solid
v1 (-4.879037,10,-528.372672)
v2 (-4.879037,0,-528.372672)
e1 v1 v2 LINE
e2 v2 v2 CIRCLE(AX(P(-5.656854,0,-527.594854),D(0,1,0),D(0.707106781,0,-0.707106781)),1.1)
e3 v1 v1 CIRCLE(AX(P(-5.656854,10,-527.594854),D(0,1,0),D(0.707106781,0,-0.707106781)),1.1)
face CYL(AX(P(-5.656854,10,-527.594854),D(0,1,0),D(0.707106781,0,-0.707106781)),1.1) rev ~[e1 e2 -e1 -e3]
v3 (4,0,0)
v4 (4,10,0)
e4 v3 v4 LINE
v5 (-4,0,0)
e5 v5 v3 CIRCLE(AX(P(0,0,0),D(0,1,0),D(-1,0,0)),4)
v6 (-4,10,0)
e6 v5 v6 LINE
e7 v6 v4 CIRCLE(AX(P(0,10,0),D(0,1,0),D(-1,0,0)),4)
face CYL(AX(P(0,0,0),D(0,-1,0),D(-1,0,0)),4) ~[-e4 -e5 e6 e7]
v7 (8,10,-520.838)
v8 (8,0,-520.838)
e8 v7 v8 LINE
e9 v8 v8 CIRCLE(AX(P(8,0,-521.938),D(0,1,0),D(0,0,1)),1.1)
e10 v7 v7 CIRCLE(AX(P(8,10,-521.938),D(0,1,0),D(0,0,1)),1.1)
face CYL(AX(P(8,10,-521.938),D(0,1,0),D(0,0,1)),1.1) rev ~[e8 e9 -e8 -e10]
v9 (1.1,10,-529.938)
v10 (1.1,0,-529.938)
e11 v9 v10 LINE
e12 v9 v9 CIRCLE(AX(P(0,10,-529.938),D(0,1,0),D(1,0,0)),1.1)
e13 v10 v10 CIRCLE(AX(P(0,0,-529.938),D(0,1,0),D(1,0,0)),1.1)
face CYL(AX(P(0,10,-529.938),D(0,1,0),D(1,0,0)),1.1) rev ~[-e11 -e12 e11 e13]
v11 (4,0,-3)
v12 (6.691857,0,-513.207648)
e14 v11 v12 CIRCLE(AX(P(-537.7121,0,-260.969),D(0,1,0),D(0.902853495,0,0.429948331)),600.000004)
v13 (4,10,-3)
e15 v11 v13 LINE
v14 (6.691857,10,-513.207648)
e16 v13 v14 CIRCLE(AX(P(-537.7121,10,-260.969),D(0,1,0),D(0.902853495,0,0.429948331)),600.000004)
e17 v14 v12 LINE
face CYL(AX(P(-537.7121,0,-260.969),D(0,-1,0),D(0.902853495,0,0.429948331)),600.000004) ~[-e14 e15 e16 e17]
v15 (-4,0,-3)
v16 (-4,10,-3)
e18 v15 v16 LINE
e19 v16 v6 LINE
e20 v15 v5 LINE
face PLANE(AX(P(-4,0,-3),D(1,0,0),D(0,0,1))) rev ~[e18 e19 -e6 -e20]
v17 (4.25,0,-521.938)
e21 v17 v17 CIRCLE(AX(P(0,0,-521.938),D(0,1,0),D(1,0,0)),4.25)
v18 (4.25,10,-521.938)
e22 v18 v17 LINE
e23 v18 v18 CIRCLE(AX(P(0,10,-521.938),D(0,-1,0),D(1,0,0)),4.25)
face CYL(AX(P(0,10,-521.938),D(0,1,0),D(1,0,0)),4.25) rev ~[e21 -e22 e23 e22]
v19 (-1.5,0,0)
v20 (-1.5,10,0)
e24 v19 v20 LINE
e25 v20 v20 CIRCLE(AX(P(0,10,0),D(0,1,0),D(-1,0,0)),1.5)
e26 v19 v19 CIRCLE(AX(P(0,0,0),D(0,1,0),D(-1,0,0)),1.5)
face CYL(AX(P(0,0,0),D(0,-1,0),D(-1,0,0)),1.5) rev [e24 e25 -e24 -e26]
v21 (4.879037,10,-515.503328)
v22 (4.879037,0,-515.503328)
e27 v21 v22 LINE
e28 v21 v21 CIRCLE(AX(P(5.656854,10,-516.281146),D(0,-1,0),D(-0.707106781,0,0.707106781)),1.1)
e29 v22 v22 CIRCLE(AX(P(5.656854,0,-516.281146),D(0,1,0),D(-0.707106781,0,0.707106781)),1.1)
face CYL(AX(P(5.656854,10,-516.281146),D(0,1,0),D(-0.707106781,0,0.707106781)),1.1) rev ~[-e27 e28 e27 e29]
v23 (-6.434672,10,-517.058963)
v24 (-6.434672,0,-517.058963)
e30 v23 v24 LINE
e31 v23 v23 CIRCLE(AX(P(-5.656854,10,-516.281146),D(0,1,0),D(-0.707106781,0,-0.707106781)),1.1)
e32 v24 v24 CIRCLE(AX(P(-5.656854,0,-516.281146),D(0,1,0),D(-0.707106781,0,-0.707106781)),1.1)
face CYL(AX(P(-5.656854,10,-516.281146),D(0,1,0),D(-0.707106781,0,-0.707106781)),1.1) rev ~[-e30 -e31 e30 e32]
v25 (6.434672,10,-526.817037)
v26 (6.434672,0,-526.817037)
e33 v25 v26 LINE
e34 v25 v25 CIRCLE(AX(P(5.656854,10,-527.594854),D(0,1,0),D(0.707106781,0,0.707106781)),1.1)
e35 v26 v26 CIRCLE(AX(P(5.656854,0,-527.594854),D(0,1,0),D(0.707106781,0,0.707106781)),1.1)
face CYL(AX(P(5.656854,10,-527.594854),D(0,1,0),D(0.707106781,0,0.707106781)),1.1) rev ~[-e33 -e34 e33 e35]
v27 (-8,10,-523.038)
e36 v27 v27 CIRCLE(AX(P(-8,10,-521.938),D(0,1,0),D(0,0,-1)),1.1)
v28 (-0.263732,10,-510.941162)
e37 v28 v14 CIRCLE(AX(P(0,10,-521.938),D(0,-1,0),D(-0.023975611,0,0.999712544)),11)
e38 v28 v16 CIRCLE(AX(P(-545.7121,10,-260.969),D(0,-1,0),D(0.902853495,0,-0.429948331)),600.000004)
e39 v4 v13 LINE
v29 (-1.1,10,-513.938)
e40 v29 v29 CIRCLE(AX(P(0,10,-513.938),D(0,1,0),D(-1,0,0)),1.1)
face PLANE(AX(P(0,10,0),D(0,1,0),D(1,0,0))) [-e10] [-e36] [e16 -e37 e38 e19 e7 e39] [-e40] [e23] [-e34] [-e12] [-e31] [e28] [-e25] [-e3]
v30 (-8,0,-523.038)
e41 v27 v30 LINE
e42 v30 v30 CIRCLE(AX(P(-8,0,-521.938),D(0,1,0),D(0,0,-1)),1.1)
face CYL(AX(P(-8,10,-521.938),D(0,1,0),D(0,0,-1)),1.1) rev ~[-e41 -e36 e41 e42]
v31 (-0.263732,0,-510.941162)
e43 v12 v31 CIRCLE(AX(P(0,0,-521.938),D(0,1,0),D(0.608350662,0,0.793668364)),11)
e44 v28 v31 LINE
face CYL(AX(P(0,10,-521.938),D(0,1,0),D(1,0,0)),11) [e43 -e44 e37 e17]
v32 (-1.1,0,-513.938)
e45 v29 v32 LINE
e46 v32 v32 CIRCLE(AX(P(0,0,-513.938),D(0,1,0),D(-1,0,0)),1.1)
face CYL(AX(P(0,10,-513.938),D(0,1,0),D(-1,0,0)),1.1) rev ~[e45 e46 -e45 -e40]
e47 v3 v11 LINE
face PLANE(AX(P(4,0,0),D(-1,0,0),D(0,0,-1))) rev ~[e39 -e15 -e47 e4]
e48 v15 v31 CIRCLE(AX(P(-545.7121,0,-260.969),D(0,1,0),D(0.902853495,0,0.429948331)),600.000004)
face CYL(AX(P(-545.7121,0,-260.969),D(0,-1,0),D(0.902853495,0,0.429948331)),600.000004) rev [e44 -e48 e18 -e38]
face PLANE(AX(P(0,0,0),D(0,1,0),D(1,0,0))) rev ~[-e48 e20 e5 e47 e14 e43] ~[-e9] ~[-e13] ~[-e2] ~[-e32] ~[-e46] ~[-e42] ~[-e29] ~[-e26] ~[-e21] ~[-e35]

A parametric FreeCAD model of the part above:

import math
import FreeCAD as App
import Part
import Sketcher
Q = App.Units.Quantity

doc = App.newDocument("Part")
body = doc.addObject("PartDesign::Body", "Body")

# Sketch on XZ plane
sketch1 = body.newObject("Sketcher::SketchObject", "Sketch")
sketch1.AttachmentSupport = (doc.getObject("XZ_Plane"), [""])
sketch1.MapMode = "FlatFace"
sketch1.addGeometry([
    Part.ArcOfCircle(Part.Circle(App.Vector(0, 0, 0), App.Vector(0, 0, 1), 4), math.radians(0), math.radians(180)),  # 0
    Part.LineSegment(App.Vector(4, 0, 0), App.Vector(4, -3, 0)),  # 1
    Part.ArcOfCircle(Part.Circle(App.Vector(-537.7121, -260.969, 0), App.Vector(0, 0, 1), 600.000004), math.radians(-25.464281), math.radians(25.464281)),  # 2
    Part.LineSegment(App.Vector(4, -518.938, 0), App.Vector(4, -521.938, 0)),  # 3
    Part.ArcOfCircle(Part.Circle(App.Vector(0, -521.938, 0), App.Vector(0, 0, 1), 4), math.radians(180), math.radians(360)),  # 4
    Part.LineSegment(App.Vector(-4, -521.938, 0), App.Vector(-4, -518.938, 0)),  # 5
    Part.ArcOfCircle(Part.Circle(App.Vector(-545.7121, -260.969, 0), App.Vector(0, 0, 1), 600.000004), math.radians(-25.464281), math.radians(25.464281)),  # 6
    Part.LineSegment(App.Vector(-4, -3, 0), App.Vector(-4, 0, 0)),  # 7
    Part.Circle(App.Vector(0, 0, 0), App.Vector(0, 0, 1), 1.5),  # 8
    Part.Circle(App.Vector(0, -521.938, 0), App.Vector(0, 0, 1), 1.5),  # 9
], False)
sketch1.addConstraint([
    Sketcher.Constraint("Tangent", 0, 1, 1, 1),
    Sketcher.Constraint("Coincident", 1, 2, 2, 2),
    Sketcher.Constraint("Coincident", 2, 1, 3, 1),
    Sketcher.Constraint("Tangent", 3, 2, 4, 2),
    Sketcher.Constraint("Tangent", 4, 1, 5, 1),
    Sketcher.Constraint("Coincident", 5, 2, 6, 1),
    Sketcher.Constraint("Coincident", 6, 2, 7, 1),
    Sketcher.Constraint("Tangent", 7, 2, 0, 2),
    Sketcher.Constraint("Vertical", 1),
    Sketcher.Constraint("Vertical", 3),
    Sketcher.Constraint("Vertical", 5),
    Sketcher.Constraint("Vertical", 7),
    Sketcher.Constraint("Coincident", 0, 3, -1, 1),
    Sketcher.Constraint("Coincident", 8, 3, -1, 1),
    Sketcher.Constraint("Coincident", 9, 3, 4, 3),
    Sketcher.Constraint("Equal", 0, 4),
    Sketcher.Constraint("Equal", 2, 6),
    Sketcher.Constraint("Equal", 8, 9),
    Sketcher.Constraint("Symmetric", 2, 1, 5, 2, -2),
    Sketcher.Constraint("Horizontal", 2, 3, 6, 3),
    Sketcher.Constraint("Equal", 1, 3),
    Sketcher.Constraint("Diameter", 8, Q("3 mm")),
    Sketcher.Constraint("Radius", 0, Q("4 mm")),
    Sketcher.Constraint("Radius", 2, Q("600 mm")),
    Sketcher.Constraint("DistanceY", 1, 2, 1, 1, Q("3 mm")),
    Sketcher.Constraint("DistanceY", 4, 3, -1, 1, Q("521.938 mm")),
])
pad1 = body.newObject("PartDesign::Pad", "Pad")
pad1.Profile = sketch1
pad1.Length = 10
pad1.Reversed = True

# Sketch on XZ plane
sketch2 = body.newObject("Sketcher::SketchObject", "Sketch001")
sketch2.AttachmentSupport = (doc.getObject("XZ_Plane"), [""])
sketch2.MapMode = "FlatFace"
sketch2.AttachmentOffset = App.Placement(App.Vector(0, 0, -10), App.Rotation())
sketch2.addGeometry([
    Part.ArcOfCircle(Part.Circle(App.Vector(-537.7121, -260.969, 0), App.Vector(0, 0, 1), 600.000004), math.radians(-25.464281), math.radians(-24.859701)),  # 0
    Part.ArcOfCircle(Part.Circle(App.Vector(0, -521.938, 0), App.Vector(0, 0, 1), 11), math.radians(91.373833), math.radians(412.52966)),  # 1
    Part.ArcOfCircle(Part.Circle(App.Vector(-545.7121, -260.969, 0), App.Vector(0, 0, 1), 600.000004), math.radians(-25.464281), math.radians(-24.621394)),  # 2
    Part.LineSegment(App.Vector(-4, -518.938, 0), App.Vector(-4, -521.938, 0)),  # 3
    Part.ArcOfCircle(Part.Circle(App.Vector(0, -521.938, 0), App.Vector(0, 0, 1), 4), math.radians(180), math.radians(360)),  # 4
    Part.LineSegment(App.Vector(4, -521.938, 0), App.Vector(4, -518.938, 0)),  # 5
], False)
sketch2.addConstraint([
    Sketcher.Constraint("Coincident", 0, 2, 1, 2),
    Sketcher.Constraint("Coincident", 1, 1, 2, 2),
    Sketcher.Constraint("Coincident", 2, 1, 3, 1),
    Sketcher.Constraint("Tangent", 3, 2, 4, 1),
    Sketcher.Constraint("Tangent", 4, 2, 5, 1),
    Sketcher.Constraint("Coincident", 5, 2, 0, 1),
    Sketcher.Constraint("Vertical", 3),
    Sketcher.Constraint("Vertical", 5),
    Sketcher.Constraint("Coincident", 4, 3, 1, 3),
    Sketcher.Constraint("Equal", 0, 2),
    Sketcher.Constraint("Symmetric", 2, 1, 5, 2, -2),
    Sketcher.Constraint("Horizontal", 0, 3, 2, 3),
    Sketcher.Constraint("Radius", 1, Q("11 mm")),
    Sketcher.Constraint("Radius", 0, Q("600 mm")),
    Sketcher.Constraint("Radius", 4, Q("4 mm")),
    Sketcher.Constraint("DistanceY", 3, 2, 3, 1, Q("3 mm")),
    Sketcher.Constraint("DistanceX", 0, 3, -1, 1, Q("537.712 mm")),
    Sketcher.Constraint("DistanceY", 0, 3, -1, 1, Q("260.969 mm")),
])
pad2 = body.newObject("PartDesign::Pad", "Pad001")
pad2.Profile = sketch2
pad2.Length = 10

# Sketch on XZ plane
sketch3 = body.newObject("Sketcher::SketchObject", "Sketch002")
sketch3.AttachmentSupport = (doc.getObject("XZ_Plane"), [""])
sketch3.MapMode = "FlatFace"
sketch3.AttachmentOffset = App.Placement(App.Vector(0, 0, -10), App.Rotation())
sketch3.addGeometry([
    Part.Circle(App.Vector(0, -521.938, 0), App.Vector(0, 0, 1), 4.25),
    Part.Circle(App.Vector(0, -529.938, 0), App.Vector(0, 0, 1), 1.1),
], False)
sketch3.addConstraint([
    Sketcher.Constraint("PointOnObject", 0, 3, -2),
    Sketcher.Constraint("PointOnObject", 1, 3, -2),
    Sketcher.Constraint("Diameter", 0, Q("8.5 mm")),
    Sketcher.Constraint("Diameter", 1, Q("2.2 mm")),
    Sketcher.Constraint("DistanceY", 1, 3, 0, 3, Q("8 mm")),
    Sketcher.Constraint("DistanceY", 0, 3, -1, 1, Q("521.938 mm")),
])
pocket1 = body.newObject("PartDesign::Pocket", "Pocket")
pocket1.Profile = sketch3
pocket1.Length = 100
pocket1.Reversed = True
doc.recompute()

datumline = body.newObject("PartDesign::Line", "DatumLine")
datumline.Placement = App.Placement(App.Vector(0, 0, -521.938), App.Rotation(App.Vector(0, 0, 1), App.Vector(0, 1, 0)))
polarpattern = body.newObject("PartDesign::PolarPattern", "PolarPattern")
polarpattern.Originals = [pocket1]
polarpattern.Axis = (datumline, [""])
polarpattern.Angle = 360
polarpattern.Occurrences = 8
body.Tip = polarpattern

doc.recompute()
